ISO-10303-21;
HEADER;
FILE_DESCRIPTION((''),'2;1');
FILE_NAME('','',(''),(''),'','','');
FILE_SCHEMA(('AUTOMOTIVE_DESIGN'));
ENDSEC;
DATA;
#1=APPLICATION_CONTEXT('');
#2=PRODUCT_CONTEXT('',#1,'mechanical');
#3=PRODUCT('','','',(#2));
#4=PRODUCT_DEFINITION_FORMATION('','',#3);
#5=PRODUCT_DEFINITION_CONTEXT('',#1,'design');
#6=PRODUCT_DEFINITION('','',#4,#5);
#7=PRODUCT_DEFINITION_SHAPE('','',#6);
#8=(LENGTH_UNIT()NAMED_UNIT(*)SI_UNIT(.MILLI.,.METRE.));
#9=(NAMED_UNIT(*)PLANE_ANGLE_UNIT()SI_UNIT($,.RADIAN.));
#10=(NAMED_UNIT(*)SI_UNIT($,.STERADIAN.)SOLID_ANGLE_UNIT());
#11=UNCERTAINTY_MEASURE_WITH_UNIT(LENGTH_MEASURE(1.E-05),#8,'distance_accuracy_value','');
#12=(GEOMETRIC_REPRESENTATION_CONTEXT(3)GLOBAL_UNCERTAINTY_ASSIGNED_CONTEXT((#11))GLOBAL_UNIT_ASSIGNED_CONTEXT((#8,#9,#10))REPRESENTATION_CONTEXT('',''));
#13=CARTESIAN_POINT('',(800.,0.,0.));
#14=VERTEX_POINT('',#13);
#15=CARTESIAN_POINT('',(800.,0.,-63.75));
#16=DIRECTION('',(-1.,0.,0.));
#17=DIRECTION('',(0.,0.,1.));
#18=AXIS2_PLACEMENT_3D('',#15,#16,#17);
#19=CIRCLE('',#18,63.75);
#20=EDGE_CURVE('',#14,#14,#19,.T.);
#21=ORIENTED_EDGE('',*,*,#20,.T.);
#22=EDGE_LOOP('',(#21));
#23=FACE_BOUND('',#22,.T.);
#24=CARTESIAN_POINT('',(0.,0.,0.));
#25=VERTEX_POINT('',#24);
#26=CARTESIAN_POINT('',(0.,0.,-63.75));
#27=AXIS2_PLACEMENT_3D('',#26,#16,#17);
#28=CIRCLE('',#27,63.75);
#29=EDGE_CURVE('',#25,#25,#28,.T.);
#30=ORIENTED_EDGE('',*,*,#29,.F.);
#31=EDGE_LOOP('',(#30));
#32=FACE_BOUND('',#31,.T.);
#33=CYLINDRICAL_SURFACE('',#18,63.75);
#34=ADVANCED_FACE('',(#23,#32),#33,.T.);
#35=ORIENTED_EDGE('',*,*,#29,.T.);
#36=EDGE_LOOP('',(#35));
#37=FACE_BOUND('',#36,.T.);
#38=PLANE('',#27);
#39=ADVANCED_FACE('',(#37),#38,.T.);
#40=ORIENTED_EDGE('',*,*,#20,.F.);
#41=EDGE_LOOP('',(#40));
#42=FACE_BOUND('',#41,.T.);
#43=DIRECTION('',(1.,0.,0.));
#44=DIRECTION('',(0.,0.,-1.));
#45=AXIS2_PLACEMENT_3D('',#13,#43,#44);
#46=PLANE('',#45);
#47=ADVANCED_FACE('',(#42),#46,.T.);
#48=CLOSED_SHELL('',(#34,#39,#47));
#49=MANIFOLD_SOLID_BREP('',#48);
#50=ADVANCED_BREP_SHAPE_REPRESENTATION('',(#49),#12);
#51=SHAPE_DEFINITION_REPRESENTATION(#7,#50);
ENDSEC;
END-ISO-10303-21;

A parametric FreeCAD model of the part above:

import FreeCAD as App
import Part
import Sketcher
from FreeCAD import Vector

doc = App.newDocument("Part")
body = doc.addObject("PartDesign::Body", "Body")

# Sketch on XZ plane
sketch1 = body.newObject("Sketcher::SketchObject", "Sketch")
sketch1.AttachmentSupport = (doc.getObject("XZ_Plane"), [""])
sketch1.MapMode = "FlatFace"
sketch1.addGeometry([
    Part.LineSegment(Vector(0, -63.75, 0), Vector(0, 0, 0)),
    Part.LineSegment(Vector(0, 0, 0), Vector(800, 0, 0)),
    Part.LineSegment(Vector(800, 0, 0), Vector(800, -63.75, 0)),
    Part.LineSegment(Vector(800, -63.75, 0), Vector(0, -63.75, 0)),
], False)
sketch1.addGeometry(Part.LineSegment(Vector(800, -63.75, 0), Vector(0, -63.75, 0)), True)  # axis
sketch1.addConstraint([
    Sketcher.Constraint("Coincident", 0, 2, 1, 1),
    Sketcher.Constraint("Coincident", 1, 2, 2, 1),
    Sketcher.Constraint("Coincident", 2, 2, 3, 1),
    Sketcher.Constraint("Coincident", 3, 2, 0, 1),
    Sketcher.Constraint("Vertical", 0),
    Sketcher.Constraint("Horizontal", 1),
    Sketcher.Constraint("Vertical", 2),
    Sketcher.Constraint("Horizontal", 3),
    Sketcher.Constraint("Horizontal", 4),
    Sketcher.Constraint("Coincident", 0, 2, -1, 1),
    Sketcher.Constraint("Coincident", 4, 1, 2, 2),
    Sketcher.Constraint("PointOnObject", 4, 2, -2),
    Sketcher.Constraint("DistanceX", 1, 1, 1, 2, 800.0),
    Sketcher.Constraint("DistanceY", 0, 1, 0, 2, 63.75),
])
revolution = body.newObject("PartDesign::Revolution", "Revolution")
revolution.Profile = sketch1
revolution.ReferenceAxis = (sketch1, ["Axis0"])
revolution.Angle = 360

doc.recompute()
